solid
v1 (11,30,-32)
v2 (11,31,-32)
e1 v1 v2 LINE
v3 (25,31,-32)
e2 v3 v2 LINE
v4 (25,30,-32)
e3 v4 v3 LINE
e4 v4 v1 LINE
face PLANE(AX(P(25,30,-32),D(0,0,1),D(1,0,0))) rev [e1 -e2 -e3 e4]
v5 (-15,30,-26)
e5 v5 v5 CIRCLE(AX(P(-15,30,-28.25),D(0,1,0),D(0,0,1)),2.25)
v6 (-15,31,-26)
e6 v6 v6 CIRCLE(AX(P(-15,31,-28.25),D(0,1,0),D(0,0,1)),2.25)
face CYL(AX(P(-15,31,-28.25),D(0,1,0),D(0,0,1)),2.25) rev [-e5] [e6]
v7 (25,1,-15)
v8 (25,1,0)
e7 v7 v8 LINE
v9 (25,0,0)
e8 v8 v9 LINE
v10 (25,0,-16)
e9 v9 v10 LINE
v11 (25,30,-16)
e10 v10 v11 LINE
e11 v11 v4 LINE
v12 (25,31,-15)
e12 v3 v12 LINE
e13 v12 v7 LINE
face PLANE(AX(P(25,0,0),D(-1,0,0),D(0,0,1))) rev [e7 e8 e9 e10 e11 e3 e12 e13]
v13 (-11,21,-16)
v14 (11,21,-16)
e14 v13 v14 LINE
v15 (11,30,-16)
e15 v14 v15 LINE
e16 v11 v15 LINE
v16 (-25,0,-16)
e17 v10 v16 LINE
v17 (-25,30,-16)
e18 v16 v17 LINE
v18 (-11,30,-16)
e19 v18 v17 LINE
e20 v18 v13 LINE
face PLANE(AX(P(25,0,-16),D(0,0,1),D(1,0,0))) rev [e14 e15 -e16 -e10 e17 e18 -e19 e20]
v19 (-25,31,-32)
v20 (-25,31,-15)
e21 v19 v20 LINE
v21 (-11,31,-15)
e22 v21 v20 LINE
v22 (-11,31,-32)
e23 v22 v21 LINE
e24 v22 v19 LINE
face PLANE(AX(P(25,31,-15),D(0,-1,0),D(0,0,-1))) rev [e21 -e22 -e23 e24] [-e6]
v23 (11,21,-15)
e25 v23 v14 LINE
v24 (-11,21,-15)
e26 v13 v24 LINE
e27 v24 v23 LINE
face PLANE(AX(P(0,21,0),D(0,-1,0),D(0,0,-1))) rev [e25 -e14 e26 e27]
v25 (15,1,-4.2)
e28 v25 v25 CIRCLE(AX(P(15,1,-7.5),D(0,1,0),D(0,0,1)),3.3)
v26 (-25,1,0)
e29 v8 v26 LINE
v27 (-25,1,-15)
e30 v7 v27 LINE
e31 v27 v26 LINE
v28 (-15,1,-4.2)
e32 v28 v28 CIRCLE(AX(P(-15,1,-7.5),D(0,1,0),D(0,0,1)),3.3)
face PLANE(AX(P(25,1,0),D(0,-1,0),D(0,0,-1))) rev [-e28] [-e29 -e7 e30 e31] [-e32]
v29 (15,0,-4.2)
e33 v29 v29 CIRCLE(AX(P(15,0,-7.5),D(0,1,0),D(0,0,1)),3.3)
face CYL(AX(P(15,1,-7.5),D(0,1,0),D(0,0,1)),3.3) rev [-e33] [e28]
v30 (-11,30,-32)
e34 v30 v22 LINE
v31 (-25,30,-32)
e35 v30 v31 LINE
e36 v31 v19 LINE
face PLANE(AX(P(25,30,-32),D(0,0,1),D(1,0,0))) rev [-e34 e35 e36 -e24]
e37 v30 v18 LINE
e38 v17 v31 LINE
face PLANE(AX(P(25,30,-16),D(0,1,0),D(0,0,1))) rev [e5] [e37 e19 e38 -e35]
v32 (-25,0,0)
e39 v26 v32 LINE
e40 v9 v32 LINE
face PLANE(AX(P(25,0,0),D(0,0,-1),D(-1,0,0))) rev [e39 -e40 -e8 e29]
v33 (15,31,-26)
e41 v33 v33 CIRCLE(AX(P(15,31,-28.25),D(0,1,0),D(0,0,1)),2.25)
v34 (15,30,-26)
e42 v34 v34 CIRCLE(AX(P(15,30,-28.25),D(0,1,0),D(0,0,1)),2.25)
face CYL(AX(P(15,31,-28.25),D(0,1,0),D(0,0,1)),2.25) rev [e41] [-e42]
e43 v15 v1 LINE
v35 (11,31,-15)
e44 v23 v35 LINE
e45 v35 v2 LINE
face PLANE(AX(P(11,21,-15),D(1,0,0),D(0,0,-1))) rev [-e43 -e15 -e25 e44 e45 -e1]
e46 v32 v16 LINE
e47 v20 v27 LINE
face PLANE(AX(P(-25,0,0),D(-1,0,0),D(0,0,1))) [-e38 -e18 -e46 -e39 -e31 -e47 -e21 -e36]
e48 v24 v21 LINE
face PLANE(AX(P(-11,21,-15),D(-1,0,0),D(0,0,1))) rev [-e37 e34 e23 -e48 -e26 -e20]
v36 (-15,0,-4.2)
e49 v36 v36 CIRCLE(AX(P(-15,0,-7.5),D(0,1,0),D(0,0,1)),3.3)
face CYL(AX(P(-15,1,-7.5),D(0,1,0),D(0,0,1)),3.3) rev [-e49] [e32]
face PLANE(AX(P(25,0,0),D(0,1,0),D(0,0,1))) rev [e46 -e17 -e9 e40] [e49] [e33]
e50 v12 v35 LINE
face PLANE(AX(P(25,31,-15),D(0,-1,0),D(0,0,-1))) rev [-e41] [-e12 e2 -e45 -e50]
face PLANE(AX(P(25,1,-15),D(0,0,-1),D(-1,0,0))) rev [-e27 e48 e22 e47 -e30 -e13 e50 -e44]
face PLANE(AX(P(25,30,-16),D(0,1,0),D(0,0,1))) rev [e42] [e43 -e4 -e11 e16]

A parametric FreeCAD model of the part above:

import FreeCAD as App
import Part
import Sketcher
from FreeCAD import Vector
Q = App.Units.Quantity

doc = App.newDocument("Part")
body = doc.addObject("PartDesign::Body", "Body")

# Sketch on YZ plane
sketch1 = body.newObject("Sketcher::SketchObject", "Sketch")
sketch1.AttachmentSupport = (doc.getObject("YZ_Plane"), [""])
sketch1.MapMode = "FlatFace"
sketch1.addGeometry([
    Part.LineSegment(Vector(0, 0, 0), Vector(0, -16, 0)),  # 0
    Part.LineSegment(Vector(0, -16, 0), Vector(30, -16, 0)),  # 1
    Part.LineSegment(Vector(30, -16, 0), Vector(30, -32, 0)),  # 2
    Part.LineSegment(Vector(30, -32, 0), Vector(31, -32, 0)),  # 3
    Part.LineSegment(Vector(31, -32, 0), Vector(31, -15, 0)),  # 4
    Part.LineSegment(Vector(31, -15, 0), Vector(1, -15, 0)),  # 5
    Part.LineSegment(Vector(1, -15, 0), Vector(1, 0, 0)),  # 6
    Part.LineSegment(Vector(1, 0, 0), Vector(0, 0, 0)),  # 7
], False)
sketch1.addConstraint([
    Sketcher.Constraint("Coincident", 0, 2, 1, 1),
    Sketcher.Constraint("Coincident", 1, 2, 2, 1),
    Sketcher.Constraint("Coincident", 2, 2, 3, 1),
    Sketcher.Constraint("Coincident", 3, 2, 4, 1),
    Sketcher.Constraint("Coincident", 4, 2, 5, 1),
    Sketcher.Constraint("Coincident", 5, 2, 6, 1),
    Sketcher.Constraint("Coincident", 6, 2, 7, 1),
    Sketcher.Constraint("Coincident", 7, 2, 0, 1),
    Sketcher.Constraint("Vertical", 0),
    Sketcher.Constraint("Horizontal", 1),
    Sketcher.Constraint("Vertical", 2),
    Sketcher.Constraint("Horizontal", 3),
    Sketcher.Constraint("Vertical", 4),
    Sketcher.Constraint("Horizontal", 5),
    Sketcher.Constraint("Vertical", 6),
    Sketcher.Constraint("Horizontal", 7),
    Sketcher.Constraint("Coincident", 7, 2, -1, 1),
    Sketcher.Constraint("Equal", 1, 5),
    Sketcher.Constraint("Equal", 0, 2),
    Sketcher.Constraint("DistanceX", 1, 1, 1, 2, Q("30 mm")),
    Sketcher.Constraint("DistanceX", 3, 1, 3, 2, Q("1 mm")),
    Sketcher.Constraint("DistanceY", 0, 2, 0, 1, Q("16 mm")),
    Sketcher.Constraint("DistanceY", 4, 1, 4, 2, Q("17 mm")),
])
pad1 = body.newObject("PartDesign::Pad", "Pad")
pad1.Profile = sketch1
pad1.Length = 50
pad1.Midplane = True

# Sketch on XZ plane
sketch2 = body.newObject("Sketcher::SketchObject", "Sketch001")
sketch2.AttachmentSupport = (doc.getObject("XZ_Plane"), [""])
sketch2.MapMode = "FlatFace"
sketch2.AttachmentOffset = App.Placement(Vector(0, 0, -31), App.Rotation())
sketch2.addGeometry([
    Part.LineSegment(Vector(-11, -32, 0), Vector(-11, -15, 0)),
    Part.LineSegment(Vector(-11, -15, 0), Vector(11, -15, 0)),
    Part.LineSegment(Vector(11, -15, 0), Vector(11, -32, 0)),
    Part.LineSegment(Vector(11, -32, 0), Vector(-11, -32, 0)),
], False)
sketch2.addConstraint([
    Sketcher.Constraint("Coincident", 0, 2, 1, 1),
    Sketcher.Constraint("Coincident", 1, 2, 2, 1),
    Sketcher.Constraint("Coincident", 2, 2, 3, 1),
    Sketcher.Constraint("Coincident", 3, 2, 0, 1),
    Sketcher.Constraint("Vertical", 0),
    Sketcher.Constraint("Horizontal", 1),
    Sketcher.Constraint("Vertical", 2),
    Sketcher.Constraint("Horizontal", 3),
    Sketcher.Constraint("DistanceX", 1, 1, 1, 2, Q("22 mm")),
    Sketcher.Constraint("DistanceY", 0, 1, 0, 2, Q("17 mm")),
    Sketcher.Constraint("DistanceX", 0, 2, -1, 1, Q("11 mm")),
    Sketcher.Constraint("DistanceY", 0, 2, -1, 1, Q("15 mm")),
])
pocket1 = body.newObject("PartDesign::Pocket", "Pocket")
pocket1.Profile = sketch2
pocket1.Length = 10
pocket1.Reversed = True

# Sketch on XZ plane
sketch3 = body.newObject("Sketcher::SketchObject", "Sketch002")
sketch3.AttachmentSupport = (doc.getObject("XZ_Plane"), [""])
sketch3.MapMode = "FlatFace"
sketch3.AttachmentOffset = App.Placement(Vector(0, 0, -31), App.Rotation())
sketch3.addGeometry([
    Part.Circle(Vector(-15, -28.2, 0), Vector(0, 0, 1), 2.2),
    Part.Circle(Vector(15, -28.2, 0), Vector(0, 0, 1), 2.2),
], False)
sketch3.addConstraint([
    Sketcher.Constraint("Equal", 0, 1),
    Sketcher.Constraint("Symmetric", 0, 3, 1, 3, -2),
    Sketcher.Constraint("Diameter", 0, Q("4.5 mm")),
    Sketcher.Constraint("DistanceX", 0, 3, -1, 1, Q("15 mm")),
    Sketcher.Constraint("DistanceY", 0, 3, -1, 1, Q("28.25 mm")),
])
doc.recompute()
hole = body.newObject("PartDesign::Hole", "Hole")
hole.Profile = sketch3
hole.ThreadType = "None"
hole.Diameter = 4.5
hole.DepthType = "ThroughAll"
hole.Reversed = True

# Sketch on XZ plane
sketch4 = body.newObject("Sketcher::SketchObject", "Sketch003")
sketch4.AttachmentSupport = (doc.getObject("XZ_Plane"), [""])
sketch4.MapMode = "FlatFace"
sketch4.AttachmentOffset = App.Placement(Vector(0, 0, -1), App.Rotation())
sketch4.addGeometry([
    Part.Circle(Vector(-15, -7.5, 0), Vector(0, 0, 1), 3.3),
    Part.Circle(Vector(15, -7.5, 0), Vector(0, 0, 1), 3.3),
], False)
sketch4.addConstraint([
    Sketcher.Constraint("Equal", 0, 1),
    Sketcher.Constraint("Symmetric", 0, 3, 1, 3, -2),
    Sketcher.Constraint("Diameter", 0, Q("6.6 mm")),
    Sketcher.Constraint("DistanceX", 0, 3, -1, 1, Q("15 mm")),
    Sketcher.Constraint("DistanceY", 0, 3, -1, 1, Q("7.5 mm")),
])
doc.recompute()
hole2 = body.newObject("PartDesign::Hole", "Hole001")
hole2.Profile = sketch4
hole2.ThreadType = "None"
hole2.Diameter = 6.6
hole2.DepthType = "ThroughAll"
hole2.Reversed = True

doc.recompute()
